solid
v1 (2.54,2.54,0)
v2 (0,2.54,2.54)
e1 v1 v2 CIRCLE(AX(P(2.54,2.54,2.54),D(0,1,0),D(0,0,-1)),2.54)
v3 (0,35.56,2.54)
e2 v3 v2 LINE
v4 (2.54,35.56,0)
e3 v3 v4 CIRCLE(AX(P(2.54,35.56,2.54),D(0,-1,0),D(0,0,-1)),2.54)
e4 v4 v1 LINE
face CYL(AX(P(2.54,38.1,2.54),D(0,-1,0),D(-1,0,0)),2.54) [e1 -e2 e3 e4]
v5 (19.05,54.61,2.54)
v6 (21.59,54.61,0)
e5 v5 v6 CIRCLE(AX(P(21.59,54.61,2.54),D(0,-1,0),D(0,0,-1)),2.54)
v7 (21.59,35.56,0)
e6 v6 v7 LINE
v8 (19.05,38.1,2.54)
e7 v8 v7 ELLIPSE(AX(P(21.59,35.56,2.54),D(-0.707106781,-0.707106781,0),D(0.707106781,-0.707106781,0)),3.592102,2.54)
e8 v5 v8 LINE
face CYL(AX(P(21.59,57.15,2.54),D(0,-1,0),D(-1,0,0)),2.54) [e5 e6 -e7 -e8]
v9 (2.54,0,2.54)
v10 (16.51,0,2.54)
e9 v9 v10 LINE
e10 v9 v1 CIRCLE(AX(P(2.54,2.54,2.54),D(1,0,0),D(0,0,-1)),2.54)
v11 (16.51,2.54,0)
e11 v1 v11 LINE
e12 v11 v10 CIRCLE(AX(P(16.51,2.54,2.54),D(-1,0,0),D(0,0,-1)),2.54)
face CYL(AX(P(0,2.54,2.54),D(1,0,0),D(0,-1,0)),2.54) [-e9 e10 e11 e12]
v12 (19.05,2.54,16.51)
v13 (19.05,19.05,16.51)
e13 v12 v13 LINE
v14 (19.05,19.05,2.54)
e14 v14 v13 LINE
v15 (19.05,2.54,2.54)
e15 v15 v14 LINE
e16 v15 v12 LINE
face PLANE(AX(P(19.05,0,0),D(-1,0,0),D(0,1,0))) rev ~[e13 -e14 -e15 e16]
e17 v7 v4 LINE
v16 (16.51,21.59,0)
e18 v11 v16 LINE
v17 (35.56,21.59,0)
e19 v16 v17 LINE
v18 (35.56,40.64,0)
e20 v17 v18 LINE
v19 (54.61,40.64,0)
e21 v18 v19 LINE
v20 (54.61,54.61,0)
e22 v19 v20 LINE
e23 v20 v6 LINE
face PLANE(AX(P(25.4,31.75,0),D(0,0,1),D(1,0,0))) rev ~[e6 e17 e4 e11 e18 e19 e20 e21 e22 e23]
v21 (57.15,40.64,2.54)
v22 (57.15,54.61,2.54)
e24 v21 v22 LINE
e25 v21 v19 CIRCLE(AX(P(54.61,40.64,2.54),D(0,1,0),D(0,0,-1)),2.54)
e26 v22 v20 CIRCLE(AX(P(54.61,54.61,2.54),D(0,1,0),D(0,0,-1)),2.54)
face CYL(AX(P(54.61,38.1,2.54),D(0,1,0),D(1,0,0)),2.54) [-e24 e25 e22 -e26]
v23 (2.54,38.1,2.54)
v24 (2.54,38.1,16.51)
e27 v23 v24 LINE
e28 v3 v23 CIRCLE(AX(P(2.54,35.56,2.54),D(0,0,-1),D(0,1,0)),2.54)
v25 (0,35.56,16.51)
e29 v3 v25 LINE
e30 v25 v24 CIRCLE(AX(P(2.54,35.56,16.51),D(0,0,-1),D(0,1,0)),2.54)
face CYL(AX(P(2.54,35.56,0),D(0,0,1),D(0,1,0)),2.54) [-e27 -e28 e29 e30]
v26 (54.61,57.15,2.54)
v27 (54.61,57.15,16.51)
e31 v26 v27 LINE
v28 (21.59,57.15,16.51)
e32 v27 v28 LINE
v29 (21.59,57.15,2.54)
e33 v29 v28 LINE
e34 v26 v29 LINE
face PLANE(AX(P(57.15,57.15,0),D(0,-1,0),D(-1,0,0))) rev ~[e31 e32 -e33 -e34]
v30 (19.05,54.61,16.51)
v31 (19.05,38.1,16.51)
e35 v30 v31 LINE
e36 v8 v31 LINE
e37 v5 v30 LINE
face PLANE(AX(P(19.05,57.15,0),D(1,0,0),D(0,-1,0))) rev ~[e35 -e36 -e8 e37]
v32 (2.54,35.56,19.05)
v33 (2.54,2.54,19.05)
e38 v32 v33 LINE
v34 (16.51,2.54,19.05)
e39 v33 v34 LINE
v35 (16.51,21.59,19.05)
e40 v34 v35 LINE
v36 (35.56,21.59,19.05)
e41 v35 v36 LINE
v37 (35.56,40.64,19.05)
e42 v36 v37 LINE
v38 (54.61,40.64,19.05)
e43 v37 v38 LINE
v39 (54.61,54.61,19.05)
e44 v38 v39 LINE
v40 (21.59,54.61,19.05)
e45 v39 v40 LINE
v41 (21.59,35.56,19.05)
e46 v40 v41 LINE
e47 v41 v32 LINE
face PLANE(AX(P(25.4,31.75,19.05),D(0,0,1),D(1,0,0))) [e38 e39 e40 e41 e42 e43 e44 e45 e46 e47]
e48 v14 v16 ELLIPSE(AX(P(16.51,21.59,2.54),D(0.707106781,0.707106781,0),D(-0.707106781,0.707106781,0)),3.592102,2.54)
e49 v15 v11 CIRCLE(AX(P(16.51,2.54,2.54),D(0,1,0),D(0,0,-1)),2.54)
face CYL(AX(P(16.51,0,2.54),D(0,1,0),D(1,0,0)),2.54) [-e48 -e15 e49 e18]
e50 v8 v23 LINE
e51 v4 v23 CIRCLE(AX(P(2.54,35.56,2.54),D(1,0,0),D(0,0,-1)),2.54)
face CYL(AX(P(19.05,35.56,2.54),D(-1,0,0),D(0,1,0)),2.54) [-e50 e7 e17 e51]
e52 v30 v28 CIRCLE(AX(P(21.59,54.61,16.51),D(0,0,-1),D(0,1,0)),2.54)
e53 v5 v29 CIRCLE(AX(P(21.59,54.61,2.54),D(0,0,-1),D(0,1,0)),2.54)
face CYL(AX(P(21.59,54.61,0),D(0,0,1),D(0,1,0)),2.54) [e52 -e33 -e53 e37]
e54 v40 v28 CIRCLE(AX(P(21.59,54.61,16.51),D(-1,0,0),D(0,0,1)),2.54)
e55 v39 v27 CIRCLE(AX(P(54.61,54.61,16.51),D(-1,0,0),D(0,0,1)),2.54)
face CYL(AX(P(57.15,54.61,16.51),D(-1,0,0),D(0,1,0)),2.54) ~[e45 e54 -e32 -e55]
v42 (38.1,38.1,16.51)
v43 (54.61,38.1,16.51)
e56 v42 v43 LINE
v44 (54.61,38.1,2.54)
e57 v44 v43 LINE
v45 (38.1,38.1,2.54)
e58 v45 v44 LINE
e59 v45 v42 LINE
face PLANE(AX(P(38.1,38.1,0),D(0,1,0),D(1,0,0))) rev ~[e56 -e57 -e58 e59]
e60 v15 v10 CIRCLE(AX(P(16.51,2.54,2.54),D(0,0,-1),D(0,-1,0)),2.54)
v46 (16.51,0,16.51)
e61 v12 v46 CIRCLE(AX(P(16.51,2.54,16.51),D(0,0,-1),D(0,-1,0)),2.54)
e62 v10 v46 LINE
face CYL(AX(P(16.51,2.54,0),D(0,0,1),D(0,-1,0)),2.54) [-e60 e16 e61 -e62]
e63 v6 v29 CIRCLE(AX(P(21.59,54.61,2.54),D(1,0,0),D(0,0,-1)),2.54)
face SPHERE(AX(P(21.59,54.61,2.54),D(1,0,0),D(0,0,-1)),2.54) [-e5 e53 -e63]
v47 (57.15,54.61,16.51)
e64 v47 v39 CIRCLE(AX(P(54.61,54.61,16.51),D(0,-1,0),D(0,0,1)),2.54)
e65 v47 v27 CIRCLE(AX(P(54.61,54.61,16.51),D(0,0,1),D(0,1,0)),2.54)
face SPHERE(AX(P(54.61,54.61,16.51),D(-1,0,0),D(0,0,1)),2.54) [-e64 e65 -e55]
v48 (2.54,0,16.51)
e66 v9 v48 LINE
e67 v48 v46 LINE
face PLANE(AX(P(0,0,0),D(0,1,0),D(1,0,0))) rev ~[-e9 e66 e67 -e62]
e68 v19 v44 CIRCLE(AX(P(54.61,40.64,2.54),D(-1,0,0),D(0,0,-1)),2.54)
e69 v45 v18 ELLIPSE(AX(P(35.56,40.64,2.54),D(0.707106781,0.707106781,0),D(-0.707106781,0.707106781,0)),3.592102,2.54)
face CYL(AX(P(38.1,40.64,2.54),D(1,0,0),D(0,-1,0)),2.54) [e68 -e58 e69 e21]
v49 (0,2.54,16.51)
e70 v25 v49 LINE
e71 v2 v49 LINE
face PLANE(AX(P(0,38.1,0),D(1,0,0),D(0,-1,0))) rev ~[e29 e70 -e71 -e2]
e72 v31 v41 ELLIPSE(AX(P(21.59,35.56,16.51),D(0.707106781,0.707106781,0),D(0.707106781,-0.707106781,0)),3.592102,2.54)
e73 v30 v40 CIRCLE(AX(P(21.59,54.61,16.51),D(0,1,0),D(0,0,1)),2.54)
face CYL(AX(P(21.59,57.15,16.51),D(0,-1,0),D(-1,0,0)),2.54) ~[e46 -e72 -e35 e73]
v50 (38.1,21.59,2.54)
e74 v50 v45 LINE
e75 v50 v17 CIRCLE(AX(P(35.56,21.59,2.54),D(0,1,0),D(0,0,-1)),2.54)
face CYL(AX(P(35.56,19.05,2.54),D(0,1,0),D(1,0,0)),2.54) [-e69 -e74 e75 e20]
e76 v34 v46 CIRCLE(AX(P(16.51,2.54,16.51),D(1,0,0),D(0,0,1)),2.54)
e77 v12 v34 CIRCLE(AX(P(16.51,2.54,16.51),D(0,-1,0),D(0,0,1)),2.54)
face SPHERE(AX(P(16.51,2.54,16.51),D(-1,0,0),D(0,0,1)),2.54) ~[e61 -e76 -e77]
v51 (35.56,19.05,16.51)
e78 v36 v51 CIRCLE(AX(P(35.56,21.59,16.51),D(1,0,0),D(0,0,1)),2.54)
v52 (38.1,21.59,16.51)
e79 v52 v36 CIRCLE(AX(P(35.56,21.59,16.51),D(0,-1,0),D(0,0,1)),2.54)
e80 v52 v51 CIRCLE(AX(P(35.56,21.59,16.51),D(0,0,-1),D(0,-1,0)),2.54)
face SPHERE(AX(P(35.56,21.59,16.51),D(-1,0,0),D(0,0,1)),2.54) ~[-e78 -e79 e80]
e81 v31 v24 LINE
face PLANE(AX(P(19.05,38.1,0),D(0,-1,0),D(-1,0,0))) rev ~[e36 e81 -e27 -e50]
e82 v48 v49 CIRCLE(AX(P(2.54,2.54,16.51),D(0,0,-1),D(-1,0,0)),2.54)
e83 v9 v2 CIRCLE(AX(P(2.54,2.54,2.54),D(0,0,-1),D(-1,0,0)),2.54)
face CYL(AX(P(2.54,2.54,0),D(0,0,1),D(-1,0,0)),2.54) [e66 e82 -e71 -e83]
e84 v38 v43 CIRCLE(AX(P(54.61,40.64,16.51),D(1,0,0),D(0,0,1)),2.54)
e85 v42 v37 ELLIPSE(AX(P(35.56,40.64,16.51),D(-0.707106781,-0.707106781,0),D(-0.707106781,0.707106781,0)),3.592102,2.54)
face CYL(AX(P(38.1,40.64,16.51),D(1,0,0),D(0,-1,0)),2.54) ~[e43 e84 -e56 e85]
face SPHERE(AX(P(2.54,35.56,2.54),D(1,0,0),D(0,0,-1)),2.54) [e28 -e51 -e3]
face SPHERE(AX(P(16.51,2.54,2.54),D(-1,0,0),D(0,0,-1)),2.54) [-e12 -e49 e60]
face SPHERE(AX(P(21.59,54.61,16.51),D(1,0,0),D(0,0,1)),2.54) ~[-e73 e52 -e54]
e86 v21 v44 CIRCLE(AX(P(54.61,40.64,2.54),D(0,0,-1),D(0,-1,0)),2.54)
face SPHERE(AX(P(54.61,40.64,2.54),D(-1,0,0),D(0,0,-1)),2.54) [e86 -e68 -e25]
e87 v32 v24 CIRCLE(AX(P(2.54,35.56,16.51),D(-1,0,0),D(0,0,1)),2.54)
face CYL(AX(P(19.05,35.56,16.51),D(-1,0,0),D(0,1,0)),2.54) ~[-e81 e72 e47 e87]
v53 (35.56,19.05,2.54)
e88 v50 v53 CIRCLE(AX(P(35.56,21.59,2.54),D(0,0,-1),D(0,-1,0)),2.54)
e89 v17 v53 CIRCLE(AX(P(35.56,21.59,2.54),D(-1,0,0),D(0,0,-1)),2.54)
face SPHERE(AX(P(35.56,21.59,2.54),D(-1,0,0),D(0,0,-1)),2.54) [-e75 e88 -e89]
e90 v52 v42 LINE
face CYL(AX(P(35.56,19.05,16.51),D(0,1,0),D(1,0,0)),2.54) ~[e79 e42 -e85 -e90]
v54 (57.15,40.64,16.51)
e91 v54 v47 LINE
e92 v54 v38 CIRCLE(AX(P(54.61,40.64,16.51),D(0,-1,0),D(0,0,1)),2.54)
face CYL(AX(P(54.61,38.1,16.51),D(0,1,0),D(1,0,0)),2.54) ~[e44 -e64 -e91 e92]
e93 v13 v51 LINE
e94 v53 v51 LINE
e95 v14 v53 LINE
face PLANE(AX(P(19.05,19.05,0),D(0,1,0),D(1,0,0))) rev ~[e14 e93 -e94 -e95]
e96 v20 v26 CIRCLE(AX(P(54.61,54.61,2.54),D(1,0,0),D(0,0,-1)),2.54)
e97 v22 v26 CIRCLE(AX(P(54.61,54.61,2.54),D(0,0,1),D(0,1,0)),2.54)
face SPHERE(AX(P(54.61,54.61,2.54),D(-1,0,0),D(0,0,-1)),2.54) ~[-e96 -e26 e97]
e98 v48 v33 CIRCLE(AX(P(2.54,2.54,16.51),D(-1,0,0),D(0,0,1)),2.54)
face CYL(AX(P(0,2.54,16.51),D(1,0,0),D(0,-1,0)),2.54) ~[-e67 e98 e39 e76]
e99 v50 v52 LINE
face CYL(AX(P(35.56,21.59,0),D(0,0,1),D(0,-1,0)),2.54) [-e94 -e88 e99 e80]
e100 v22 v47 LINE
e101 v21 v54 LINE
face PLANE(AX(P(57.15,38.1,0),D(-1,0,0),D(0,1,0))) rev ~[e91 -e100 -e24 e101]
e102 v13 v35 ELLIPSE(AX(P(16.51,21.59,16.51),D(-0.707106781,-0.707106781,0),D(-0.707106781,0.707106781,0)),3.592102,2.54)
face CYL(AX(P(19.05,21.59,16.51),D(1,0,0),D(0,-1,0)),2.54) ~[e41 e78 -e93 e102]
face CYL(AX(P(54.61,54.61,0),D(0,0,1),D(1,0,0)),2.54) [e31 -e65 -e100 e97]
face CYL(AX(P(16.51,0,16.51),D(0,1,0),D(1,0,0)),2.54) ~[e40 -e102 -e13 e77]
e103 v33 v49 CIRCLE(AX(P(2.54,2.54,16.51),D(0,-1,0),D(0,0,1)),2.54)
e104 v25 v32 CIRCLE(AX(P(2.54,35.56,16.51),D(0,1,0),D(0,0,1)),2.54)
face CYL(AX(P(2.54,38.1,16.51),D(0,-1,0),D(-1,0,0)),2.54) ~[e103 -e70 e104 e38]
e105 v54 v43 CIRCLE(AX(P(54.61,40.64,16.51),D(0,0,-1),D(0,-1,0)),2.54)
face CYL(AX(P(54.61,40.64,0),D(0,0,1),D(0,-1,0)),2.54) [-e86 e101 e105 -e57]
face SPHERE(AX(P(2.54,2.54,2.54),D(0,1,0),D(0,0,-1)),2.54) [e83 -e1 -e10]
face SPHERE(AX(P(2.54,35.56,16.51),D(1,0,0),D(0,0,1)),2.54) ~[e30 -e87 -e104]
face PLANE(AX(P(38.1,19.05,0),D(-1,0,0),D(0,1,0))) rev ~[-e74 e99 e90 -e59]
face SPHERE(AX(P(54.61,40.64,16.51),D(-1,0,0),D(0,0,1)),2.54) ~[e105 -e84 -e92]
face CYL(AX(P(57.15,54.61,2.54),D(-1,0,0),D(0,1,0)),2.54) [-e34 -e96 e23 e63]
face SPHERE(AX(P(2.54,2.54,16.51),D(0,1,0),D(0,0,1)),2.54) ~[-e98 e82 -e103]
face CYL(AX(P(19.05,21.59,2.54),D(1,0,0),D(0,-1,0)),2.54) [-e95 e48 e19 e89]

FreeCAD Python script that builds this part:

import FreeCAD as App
import Part
import Sketcher
from FreeCAD import Vector
Q = App.Units.Quantity


def edges_at(feature, points):
    """Names of the edges that pass closest to the given points."""
    edges = feature.Shape.Edges
    near = lambda p: min(range(len(edges)), key=lambda i: edges[i].distToShape(Part.Vertex(*p))[0])
    return sorted({f"Edge{near(p) + 1}" for p in points})

doc = App.newDocument("Part")
body = doc.addObject("PartDesign::Body", "Body")

# Sketch on XY plane
sketch1 = body.newObject("Sketcher::SketchObject", "Sketch")
sketch1.AttachmentSupport = (doc.getObject("XY_Plane"), [""])
sketch1.MapMode = "FlatFace"
sketch1.addGeometry([
    Part.LineSegment(Vector(19, 38, 0), Vector(0, 38, 0)),  # 0
    Part.LineSegment(Vector(0, 38, 0), Vector(0, 0, 0)),  # 1
    Part.LineSegment(Vector(0, 0, 0), Vector(19, 0, 0)),  # 2
    Part.LineSegment(Vector(19, 0, 0), Vector(19, 19, 0)),  # 3
    Part.LineSegment(Vector(19, 19, 0), Vector(38, 19, 0)),  # 4
    Part.LineSegment(Vector(38, 19, 0), Vector(38, 38, 0)),  # 5
    Part.LineSegment(Vector(38, 38, 0), Vector(57, 38, 0)),  # 6
    Part.LineSegment(Vector(57, 38, 0), Vector(57, 57, 0)),  # 7
    Part.LineSegment(Vector(57, 57, 0), Vector(19, 57, 0)),  # 8
    Part.LineSegment(Vector(19, 57, 0), Vector(19, 38, 0)),  # 9
], False)
sketch1.addConstraint([
    Sketcher.Constraint("Coincident", 0, 2, 1, 1),
    Sketcher.Constraint("Coincident", 1, 2, 2, 1),
    Sketcher.Constraint("Coincident", 2, 2, 3, 1),
    Sketcher.Constraint("Coincident", 3, 2, 4, 1),
    Sketcher.Constraint("Coincident", 4, 2, 5, 1),
    Sketcher.Constraint("Coincident", 5, 2, 6, 1),
    Sketcher.Constraint("Coincident", 6, 2, 7, 1),
    Sketcher.Constraint("Coincident", 7, 2, 8, 1),
    Sketcher.Constraint("Coincident", 8, 2, 9, 1),
    Sketcher.Constraint("Coincident", 9, 2, 0, 1),
    Sketcher.Constraint("Horizontal", 0),
    Sketcher.Constraint("Vertical", 1),
    Sketcher.Constraint("Horizontal", 2),
    Sketcher.Constraint("Vertical", 3),
    Sketcher.Constraint("Horizontal", 4),
    Sketcher.Constraint("Vertical", 5),
    Sketcher.Constraint("Horizontal", 6),
    Sketcher.Constraint("Vertical", 7),
    Sketcher.Constraint("Horizontal", 8),
    Sketcher.Constraint("Vertical", 9),
    Sketcher.Constraint("Coincident", 1, 2, -1, 1),
    Sketcher.Constraint("Horizontal", 0, 2, 5, 2),
    Sketcher.Constraint("Vertical", 3, 2, 8, 2),
    Sketcher.Constraint("Equal", 2, 4),
    Sketcher.Constraint("Equal", 4, 6),
    Sketcher.Constraint("Equal", 8, 1),
    Sketcher.Constraint("Equal", 6, 3),
    Sketcher.Constraint("Equal", 5, 7),
    Sketcher.Constraint("DistanceX", 8, 2, 8, 1, Q("1.5 in")),
])
pad1 = body.newObject("PartDesign::Pad", "Pad")
pad1.Profile = sketch1
pad1.Length = Q("0.75 in")
doc.recompute()

fillet = body.newObject("PartDesign::Fillet", "Fillet")
fillet.Base = (pad1, edges_at(pad1, [
    (38.1, 57.15, 19.05),
    (19.05, 47.625, 19.05),
    (9.525, 38.1, 19.05),
    (0, 19.05, 19.05),
    (9.525, 0, 19.05),
    (19.05, 9.525, 19.05),
    (28.575, 19.05, 19.05),
    (38.1, 28.575, 19.05),
    (47.625, 38.1, 19.05),
    (57.15, 47.625, 19.05),
    (38.1, 57.15, 0),
    (19.05, 47.625, 0),
    (9.525, 38.1, 0),
    (0, 19.05, 0),
    (9.525, 0, 0),
    (19.05, 9.525, 0),
    (28.575, 19.05, 0),
    (38.1, 28.575, 0),
    (47.625, 38.1, 0),
    (57.15, 47.625, 0),
    (0, 0, 9.525),
    (19.05, 0, 9.525),
    (57.15, 38.1, 9.525),
    (57.15, 57.15, 9.525),
    (38.1, 19.05, 9.525),
    (19.05, 57.15, 9.525),
    (0, 38.1, 9.525),
]))
fillet.Radius = Q("0.1 in")

doc.recompute()
